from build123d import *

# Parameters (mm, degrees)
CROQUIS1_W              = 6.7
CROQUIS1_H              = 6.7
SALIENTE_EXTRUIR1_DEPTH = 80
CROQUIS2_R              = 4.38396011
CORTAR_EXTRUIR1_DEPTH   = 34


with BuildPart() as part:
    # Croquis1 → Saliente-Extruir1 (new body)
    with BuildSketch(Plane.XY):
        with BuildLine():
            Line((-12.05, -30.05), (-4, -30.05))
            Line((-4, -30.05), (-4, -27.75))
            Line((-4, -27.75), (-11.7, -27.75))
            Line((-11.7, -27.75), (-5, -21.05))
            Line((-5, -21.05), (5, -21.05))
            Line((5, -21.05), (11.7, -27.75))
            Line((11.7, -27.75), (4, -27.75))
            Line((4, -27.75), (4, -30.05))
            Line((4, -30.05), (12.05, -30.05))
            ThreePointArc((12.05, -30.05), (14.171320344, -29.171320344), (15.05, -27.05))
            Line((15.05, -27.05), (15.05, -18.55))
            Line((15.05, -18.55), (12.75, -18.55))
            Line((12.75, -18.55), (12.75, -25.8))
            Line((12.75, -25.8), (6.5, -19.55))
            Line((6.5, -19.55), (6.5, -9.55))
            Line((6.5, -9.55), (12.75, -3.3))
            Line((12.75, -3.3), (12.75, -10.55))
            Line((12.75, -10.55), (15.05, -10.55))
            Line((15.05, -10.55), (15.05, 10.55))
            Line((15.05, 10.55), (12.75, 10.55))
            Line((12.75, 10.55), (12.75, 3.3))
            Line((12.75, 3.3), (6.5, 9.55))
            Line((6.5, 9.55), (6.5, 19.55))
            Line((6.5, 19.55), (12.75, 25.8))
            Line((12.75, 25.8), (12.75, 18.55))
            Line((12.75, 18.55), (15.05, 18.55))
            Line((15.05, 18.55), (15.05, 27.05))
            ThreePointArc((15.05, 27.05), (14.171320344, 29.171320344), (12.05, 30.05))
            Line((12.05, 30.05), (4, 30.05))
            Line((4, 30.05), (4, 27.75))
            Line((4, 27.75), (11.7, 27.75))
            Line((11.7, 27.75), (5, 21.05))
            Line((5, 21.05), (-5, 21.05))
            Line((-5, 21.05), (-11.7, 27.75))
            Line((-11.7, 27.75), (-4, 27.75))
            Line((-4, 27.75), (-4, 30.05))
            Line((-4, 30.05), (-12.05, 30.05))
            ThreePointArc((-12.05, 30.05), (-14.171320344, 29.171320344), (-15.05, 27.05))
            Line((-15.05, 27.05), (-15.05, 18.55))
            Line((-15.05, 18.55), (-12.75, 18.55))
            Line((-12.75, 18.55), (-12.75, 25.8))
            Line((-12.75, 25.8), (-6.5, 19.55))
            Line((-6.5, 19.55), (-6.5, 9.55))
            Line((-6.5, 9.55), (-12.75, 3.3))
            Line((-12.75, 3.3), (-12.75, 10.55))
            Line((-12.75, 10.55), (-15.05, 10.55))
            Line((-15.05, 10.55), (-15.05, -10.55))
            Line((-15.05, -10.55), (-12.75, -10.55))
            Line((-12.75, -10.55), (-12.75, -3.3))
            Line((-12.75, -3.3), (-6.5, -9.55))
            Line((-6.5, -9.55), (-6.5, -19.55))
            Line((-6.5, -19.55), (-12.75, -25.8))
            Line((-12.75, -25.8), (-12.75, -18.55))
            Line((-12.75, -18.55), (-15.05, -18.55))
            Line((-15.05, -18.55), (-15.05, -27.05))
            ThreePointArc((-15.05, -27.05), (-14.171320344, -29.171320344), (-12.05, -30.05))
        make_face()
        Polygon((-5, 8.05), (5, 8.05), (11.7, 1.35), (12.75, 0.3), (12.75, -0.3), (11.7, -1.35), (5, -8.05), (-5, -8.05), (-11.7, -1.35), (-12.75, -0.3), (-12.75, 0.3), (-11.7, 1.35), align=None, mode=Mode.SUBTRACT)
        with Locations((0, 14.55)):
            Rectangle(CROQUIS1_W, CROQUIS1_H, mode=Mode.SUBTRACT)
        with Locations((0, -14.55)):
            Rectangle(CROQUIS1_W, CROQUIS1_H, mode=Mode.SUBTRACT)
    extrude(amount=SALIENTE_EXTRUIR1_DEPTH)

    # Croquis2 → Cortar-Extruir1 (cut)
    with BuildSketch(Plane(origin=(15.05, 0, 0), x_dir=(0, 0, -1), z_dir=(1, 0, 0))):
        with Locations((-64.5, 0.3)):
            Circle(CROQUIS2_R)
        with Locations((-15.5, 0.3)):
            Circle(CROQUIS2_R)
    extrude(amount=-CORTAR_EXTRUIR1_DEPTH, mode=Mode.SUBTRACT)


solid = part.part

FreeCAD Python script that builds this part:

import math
import FreeCAD as App
import Part
import Sketcher

V = App.Vector

doc = App.newDocument("Part")
body = doc.addObject("PartDesign::Body", "Body")

# Sketch on XY plane
sketch1 = body.newObject("Sketcher::SketchObject", "Sketch")
sketch1.AttachmentSupport = (doc.getObject("XY_Plane"), [""])
sketch1.MapMode = "FlatFace"
sketch1.addGeometry([
    Part.LineSegment(V(-12.1, -30.1, 0), V(-4, -30.1, 0)),  # 0
    Part.LineSegment(V(-4, -30.1, 0), V(-4, -27.8, 0)),  # 1
    Part.LineSegment(V(-4, -27.8, 0), V(-11.7, -27.8, 0)),  # 2
    Part.LineSegment(V(-11.7, -27.8, 0), V(-5, -21.1, 0)),  # 3
    Part.LineSegment(V(-5, -21.1, 0), V(5, -21.1, 0)),  # 4
    Part.LineSegment(V(5, -21.1, 0), V(11.7, -27.8, 0)),  # 5
    Part.LineSegment(V(11.7, -27.8, 0), V(4, -27.8, 0)),  # 6
    Part.LineSegment(V(4, -27.8, 0), V(4, -30.1, 0)),  # 7
    Part.LineSegment(V(4, -30.1, 0), V(12.1, -30.1, 0)),  # 8
    Part.ArcOfCircle(Part.Circle(V(12.1, -27.1, 0), V(0, 0, 1), 3), math.radians(-90), math.radians(0)),  # 9
    Part.LineSegment(V(15.1, -27.1, 0), V(15.1, -18.6, 0)),  # 10
    Part.LineSegment(V(15.1, -18.6, 0), V(12.8, -18.6, 0)),  # 11
    Part.LineSegment(V(12.8, -18.6, 0), V(12.8, -25.8, 0)),  # 12
    Part.LineSegment(V(12.8, -25.8, 0), V(6.5, -19.6, 0)),  # 13
    Part.LineSegment(V(6.5, -19.6, 0), V(6.5, -9.6, 0)),  # 14
    Part.LineSegment(V(6.5, -9.6, 0), V(12.8, -3.3, 0)),  # 15
    Part.LineSegment(V(12.8, -3.3, 0), V(12.8, -10.6, 0)),  # 16
    Part.LineSegment(V(12.8, -10.6, 0), V(15.1, -10.6, 0)),  # 17
    Part.LineSegment(V(15.1, -10.6, 0), V(15.1, 10.6, 0)),  # 18
    Part.LineSegment(V(15.1, 10.6, 0), V(12.8, 10.6, 0)),  # 19
    Part.LineSegment(V(12.8, 10.6, 0), V(12.8, 3.3, 0)),  # 20
    Part.LineSegment(V(12.8, 3.3, 0), V(6.5, 9.6, 0)),  # 21
    Part.LineSegment(V(6.5, 9.6, 0), V(6.5, 19.6, 0)),  # 22
    Part.LineSegment(V(6.5, 19.6, 0), V(12.8, 25.8, 0)),  # 23
    Part.LineSegment(V(12.8, 25.8, 0), V(12.8, 18.6, 0)),  # 24
    Part.LineSegment(V(12.8, 18.6, 0), V(15.1, 18.6, 0)),  # 25
    Part.LineSegment(V(15.1, 18.6, 0), V(15.1, 27.1, 0)),  # 26
    Part.ArcOfCircle(Part.Circle(V(12.1, 27.1, 0), V(0, 0, 1), 3), math.radians(0), math.radians(90)),  # 27
    Part.LineSegment(V(12.1, 30.1, 0), V(4, 30.1, 0)),  # 28
    Part.LineSegment(V(4, 30.1, 0), V(4, 27.8, 0)),  # 29
    Part.LineSegment(V(4, 27.8, 0), V(11.7, 27.8, 0)),  # 30
    Part.LineSegment(V(11.7, 27.8, 0), V(5, 21.1, 0)),  # 31
    Part.LineSegment(V(5, 21.1, 0), V(-5, 21.1, 0)),  # 32
    Part.LineSegment(V(-5, 21.1, 0), V(-11.7, 27.8, 0)),  # 33
    Part.LineSegment(V(-11.7, 27.8, 0), V(-4, 27.8, 0)),  # 34
    Part.LineSegment(V(-4, 27.8, 0), V(-4, 30.1, 0)),  # 35
    Part.LineSegment(V(-4, 30.1, 0), V(-12.1, 30.1, 0)),  # 36
    Part.ArcOfCircle(Part.Circle(V(-12.1, 27.1, 0), V(0, 0, 1), 3), math.radians(90), math.radians(180)),  # 37
    Part.LineSegment(V(-15.1, 27.1, 0), V(-15.1, 18.6, 0)),  # 38
    Part.LineSegment(V(-15.1, 18.6, 0), V(-12.8, 18.6, 0)),  # 39
    Part.LineSegment(V(-12.8, 18.6, 0), V(-12.8, 25.8, 0)),  # 40
    Part.LineSegment(V(-12.8, 25.8, 0), V(-6.5, 19.6, 0)),  # 41
    Part.LineSegment(V(-6.5, 19.6, 0), V(-6.5, 9.6, 0)),  # 42
    Part.LineSegment(V(-6.5, 9.6, 0), V(-12.8, 3.3, 0)),  # 43
    Part.LineSegment(V(-12.8, 3.3, 0), V(-12.8, 10.6, 0)),  # 44
    Part.LineSegment(V(-12.8, 10.6, 0), V(-15.1, 10.6, 0)),  # 45
    Part.LineSegment(V(-15.1, 10.6, 0), V(-15.1, -10.6, 0)),  # 46
    Part.LineSegment(V(-15.1, -10.6, 0), V(-12.8, -10.6, 0)),  # 47
    Part.LineSegment(V(-12.8, -10.6, 0), V(-12.8, -3.3, 0)),  # 48
    Part.LineSegment(V(-12.8, -3.3, 0), V(-6.5, -9.6, 0)),  # 49
    Part.LineSegment(V(-6.5, -9.6, 0), V(-6.5, -19.6, 0)),  # 50
    Part.LineSegment(V(-6.5, -19.6, 0), V(-12.8, -25.8, 0)),  # 51
    Part.LineSegment(V(-12.8, -25.8, 0), V(-12.8, -18.6, 0)),  # 52
    Part.LineSegment(V(-12.8, -18.6, 0), V(-15.1, -18.6, 0)),  # 53
    Part.LineSegment(V(-15.1, -18.6, 0), V(-15.1, -27.1, 0)),  # 54
    Part.ArcOfCircle(Part.Circle(V(-12.1, -27.1, 0), V(0, 0, 1), 3), math.radians(180), math.radians(270)),  # 55
    Part.LineSegment(V(3.4, -17.9, 0), V(-3.4, -17.9, 0)),  # 56
    Part.LineSegment(V(-3.4, -17.9, 0), V(-3.4, -11.2, 0)),  # 57
    Part.LineSegment(V(-3.4, -11.2, 0), V(3.4, -11.2, 0)),  # 58
    Part.LineSegment(V(3.4, -11.2, 0), V(3.4, -17.9, 0)),  # 59
    Part.LineSegment(V(-12.8, 0.3, 0), V(-5, 8.1, 0)),  # 60
    Part.LineSegment(V(-5, 8.1, 0), V(5, 8.1, 0)),  # 61
    Part.LineSegment(V(5, 8.1, 0), V(12.8, 0.3, 0)),  # 62
    Part.LineSegment(V(12.8, 0.3, 0), V(12.8, -0.3, 0)),  # 63
    Part.LineSegment(V(12.8, -0.3, 0), V(5, -8.1, 0)),  # 64
    Part.LineSegment(V(5, -8.1, 0), V(-5, -8.1, 0)),  # 65
    Part.LineSegment(V(-5, -8.1, 0), V(-12.8, -0.3, 0)),  # 66
    Part.LineSegment(V(-12.8, -0.3, 0), V(-12.8, 0.3, 0)),  # 67
    Part.LineSegment(V(3.4, 11.2, 0), V(-3.4, 11.2, 0)),  # 68
    Part.LineSegment(V(-3.4, 11.2, 0), V(-3.4, 17.9, 0)),  # 69
    Part.LineSegment(V(-3.4, 17.9, 0), V(3.4, 17.9, 0)),  # 70
    Part.LineSegment(V(3.4, 17.9, 0), V(3.4, 11.2, 0)),  # 71
], False)
sketch1.addConstraint([
    Sketcher.Constraint("Coincident", 0, 2, 1, 1),
    Sketcher.Constraint("Coincident", 1, 2, 2, 1),
    Sketcher.Constraint("Coincident", 2, 2, 3, 1),
    Sketcher.Constraint("Coincident", 3, 2, 4, 1),
    Sketcher.Constraint("Coincident", 4, 2, 5, 1),
    Sketcher.Constraint("Coincident", 5, 2, 6, 1),
    Sketcher.Constraint("Coincident", 6, 2, 7, 1),
    Sketcher.Constraint("Coincident", 7, 2, 8, 1),
    Sketcher.Constraint("Tangent", 8, 2, 9, 1),
    Sketcher.Constraint("Tangent", 9, 2, 10, 1),
    Sketcher.Constraint("Coincident", 10, 2, 11, 1),
    Sketcher.Constraint("Coincident", 11, 2, 12, 1),
    Sketcher.Constraint("Coincident", 12, 2, 13, 1),
    Sketcher.Constraint("Coincident", 13, 2, 14, 1),
    Sketcher.Constraint("Coincident", 14, 2, 15, 1),
    Sketcher.Constraint("Coincident", 15, 2, 16, 1),
    Sketcher.Constraint("Coincident", 16, 2, 17, 1),
    Sketcher.Constraint("Coincident", 17, 2, 18, 1),
    Sketcher.Constraint("Coincident", 18, 2, 19, 1),
    Sketcher.Constraint("Coincident", 19, 2, 20, 1),
    Sketcher.Constraint("Coincident", 20, 2, 21, 1),
    Sketcher.Constraint("Coincident", 21, 2, 22, 1),
    Sketcher.Constraint("Coincident", 22, 2, 23, 1),
    Sketcher.Constraint("Coincident", 23, 2, 24, 1),
    Sketcher.Constraint("Coincident", 24, 2, 25, 1),
    Sketcher.Constraint("Coincident", 25, 2, 26, 1),
    Sketcher.Constraint("Tangent", 26, 2, 27, 1),
    Sketcher.Constraint("Tangent", 27, 2, 28, 1),
    Sketcher.Constraint("Coincident", 28, 2, 29, 1),
    Sketcher.Constraint("Coincident", 29, 2, 30, 1),
    Sketcher.Constraint("Coincident", 30, 2, 31, 1),
    Sketcher.Constraint("Coincident", 31, 2, 32, 1),
    Sketcher.Constraint("Coincident", 32, 2, 33, 1),
    Sketcher.Constraint("Coincident", 33, 2, 34, 1),
    Sketcher.Constraint("Coincident", 34, 2, 35, 1),
    Sketcher.Constraint("Coincident", 35, 2, 36, 1),
    Sketcher.Constraint("Tangent", 36, 2, 37, 1),
    Sketcher.Constraint("Tangent", 37, 2, 38, 1),
    Sketcher.Constraint("Coincident", 38, 2, 39, 1),
    Sketcher.Constraint("Coincident", 39, 2, 40, 1),
    Sketcher.Constraint("Coincident", 40, 2, 41, 1),
    Sketcher.Constraint("Coincident", 41, 2, 42, 1),
    Sketcher.Constraint("Coincident", 42, 2, 43, 1),
    Sketcher.Constraint("Coincident", 43, 2, 44, 1),
    Sketcher.Constraint("Coincident", 44, 2, 45, 1),
    Sketcher.Constraint("Coincident", 45, 2, 46, 1),
    Sketcher.Constraint("Coincident", 46, 2, 47, 1),
    Sketcher.Constraint("Coincident", 47, 2, 48, 1),
    Sketcher.Constraint("Coincident", 48, 2, 49, 1),
    Sketcher.Constraint("Coincident", 49, 2, 50, 1),
    Sketcher.Constraint("Coincident", 50, 2, 51, 1),
    Sketcher.Constraint("Coincident", 51, 2, 52, 1),
    Sketcher.Constraint("Coincident", 52, 2, 53, 1),
    Sketcher.Constraint("Coincident", 53, 2, 54, 1),
    Sketcher.Constraint("Tangent", 54, 2, 55, 1),
    Sketcher.Constraint("Tangent", 55, 2, 0, 1),
    Sketcher.Constraint("Coincident", 56, 2, 57, 1),
    Sketcher.Constraint("Coincident", 57, 2, 58, 1),
    Sketcher.Constraint("Coincident", 58, 2, 59, 1),
    Sketcher.Constraint("Coincident", 59, 2, 56, 1),
    Sketcher.Constraint("Coincident", 60, 2, 61, 1),
    Sketcher.Constraint("Coincident", 61, 2, 62, 1),
    Sketcher.Constraint("Coincident", 62, 2, 63, 1),
    Sketcher.Constraint("Coincident", 63, 2, 64, 1),
    Sketcher.Constraint("Coincident", 64, 2, 65, 1),
    Sketcher.Constraint("Coincident", 65, 2, 66, 1),
    Sketcher.Constraint("Coincident", 66, 2, 67, 1),
    Sketcher.Constraint("Coincident", 67, 2, 60, 1),
    Sketcher.Constraint("Coincident", 68, 2, 69, 1),
    Sketcher.Constraint("Coincident", 69, 2, 70, 1),
    Sketcher.Constraint("Coincident", 70, 2, 71, 1),
    Sketcher.Constraint("Coincident", 71, 2, 68, 1),
    Sketcher.Constraint("Horizontal", 0),
    Sketcher.Constraint("Vertical", 1),
    Sketcher.Constraint("Horizontal", 2),
    Sketcher.Constraint("Horizontal", 4),
    Sketcher.Constraint("Horizontal", 6),
    Sketcher.Constraint("Vertical", 7),
    Sketcher.Constraint("Horizontal", 8),
    Sketcher.Constraint("Vertical", 10),
    Sketcher.Constraint("Horizontal", 11),
    Sketcher.Constraint("Vertical", 12),
    Sketcher.Constraint("Vertical", 14),
    Sketcher.Constraint("Vertical", 16),
    Sketcher.Constraint("Horizontal", 17),
    Sketcher.Constraint("Vertical", 18),
    Sketcher.Constraint("Horizontal", 19),
    Sketcher.Constraint("Vertical", 20),
    Sketcher.Constraint("Vertical", 22),
    Sketcher.Constraint("Vertical", 24),
    Sketcher.Constraint("Horizontal", 25),
    Sketcher.Constraint("Vertical", 26),
    Sketcher.Constraint("Horizontal", 28),
    Sketcher.Constraint("Vertical", 29),
    Sketcher.Constraint("Horizontal", 30),
    Sketcher.Constraint("Horizontal", 32),
    Sketcher.Constraint("Horizontal", 34),
    Sketcher.Constraint("Vertical", 35),
    Sketcher.Constraint("Horizontal", 36),
    Sketcher.Constraint("Vertical", 38),
    Sketcher.Constraint("Horizontal", 39),
    Sketcher.Constraint("Vertical", 40),
    Sketcher.Constraint("Vertical", 42),
    Sketcher.Constraint("Vertical", 44),
    Sketcher.Constraint("Horizontal", 45),
    Sketcher.Constraint("Vertical", 46),
    Sketcher.Constraint("Horizontal", 47),
    Sketcher.Constraint("Vertical", 48),
    Sketcher.Constraint("Vertical", 50),
    Sketcher.Constraint("Vertical", 52),
    Sketcher.Constraint("Horizontal", 53),
    Sketcher.Constraint("Vertical", 54),
    Sketcher.Constraint("Horizontal", 56),
    Sketcher.Constraint("Vertical", 57),
    Sketcher.Constraint("Horizontal", 58),
    Sketcher.Constraint("Vertical", 59),
    Sketcher.Constraint("Horizontal", 61),
    Sketcher.Constraint("Vertical", 63),
    Sketcher.Constraint("Horizontal", 65),
    Sketcher.Constraint("Vertical", 67),
    Sketcher.Constraint("Horizontal", 68),
    Sketcher.Constraint("Vertical", 69),
    Sketcher.Constraint("Horizontal", 70),
    Sketcher.Constraint("Vertical", 71),
    Sketcher.Constraint("Equal", 9, 27),
    Sketcher.Constraint("Equal", 27, 37),
    Sketcher.Constraint("Equal", 37, 55),
    Sketcher.Constraint("Symmetric", 9, 3, 37, 3, -1, 1),
    Sketcher.Constraint("Symmetric", 27, 3, 55, 3, -1, 1),
    Sketcher.Constraint("Symmetric", 1, 2, 29, 2, -1, 1),
    Sketcher.Constraint("Symmetric", 3, 2, 31, 2, -1, 1),
    Sketcher.Constraint("Symmetric", 5, 2, 33, 2, -1, 1),
    Sketcher.Constraint("Symmetric", 11, 2, 39, 2, -1, 1),
    Sketcher.Constraint("Symmetric", 13, 2, 41, 2, -1, 1),
    Sketcher.Constraint("Symmetric", 15, 2, 43, 2, -1, 1),
    Sketcher.Constraint("Symmetric", 17, 2, 45, 2, -1, 1),
    Sketcher.Constraint("Symmetric", 19, 2, 47, 2, -1, 1),
    Sketcher.Constraint("Symmetric", 21, 2, 49, 2, -1, 1),
    Sketcher.Constraint("Symmetric", 23, 2, 51, 2, -1, 1),
    Sketcher.Constraint("Symmetric", 60, 2, 64, 2, -1, 1),
    Sketcher.Constraint("Symmetric", 62, 2, 66, 2, -1, 1),
    Sketcher.Constraint("Symmetric", 58, 2, 68, 2, -1, 1),
    Sketcher.Constraint("Symmetric", 56, 2, 70, 2, -1, 1),
    Sketcher.Constraint("Symmetric", 27, 3, 37, 3, -2),
    Sketcher.Constraint("Symmetric", 2, 2, 5, 2, -2),
    Sketcher.Constraint("Symmetric", 24, 2, 39, 2, -2),
    Sketcher.Constraint("Symmetric", 22, 2, 41, 2, -2),
    Sketcher.Constraint("Symmetric", 20, 2, 43, 2, -2),
    Sketcher.Constraint("Perpendicular", 3, 5),
    Sketcher.Constraint("Parallel", 5, 13),
    Sketcher.Constraint("Perpendicular", 13, 15),
    Sketcher.Constraint("Perpendicular", 15, 21),
    Sketcher.Constraint("Perpendicular", 21, 23),
    Sketcher.Constraint("Parallel", 23, 31),
    Sketcher.Constraint("Perpendicular", 31, 33),
    Sketcher.Constraint("Parallel", 33, 41),
    Sketcher.Constraint("Perpendicular", 41, 43),
    Sketcher.Constraint("Perpendicular", 43, 49),
    Sketcher.Constraint("Perpendicular", 49, 51),
    Sketcher.Constraint("Parallel", 51, 60),
    Sketcher.Constraint("Perpendicular", 60, 62),
    Sketcher.Constraint("Perpendicular", 62, 64),
    Sketcher.Constraint("Perpendicular", 64, 66),
    Sketcher.Constraint("Horizontal", 23, 2, 40, 2),
    Sketcher.Constraint("Horizontal", 19, 2, 44, 2),
    Sketcher.Constraint("Horizontal", 11, 2, 52, 2),
    Sketcher.Constraint("Horizontal", 63, 2, 66, 2),
    Sketcher.Constraint("Vertical", 12, 2, 15, 2),
    Sketcher.Constraint("Vertical", 10, 2, 17, 2),
    Sketcher.Constraint("Vertical", 7, 2, 28, 2),
    Sketcher.Constraint("Vertical", 1, 2, 34, 2),
    Sketcher.Constraint("Vertical", 32, 2, 60, 2),
    Sketcher.Constraint("Vertical", 24, 2, 62, 2),
    Sketcher.Constraint("Vertical", 57, 2, 68, 2),
    Sketcher.Constraint("Equal", 53, 1),
    Sketcher.Constraint("Equal", 65, 14),
    Sketcher.Constraint("Equal", 12, 16),
    Sketcher.Constraint("Equal", 70, 57),
    Sketcher.Constraint("Radius", 9, 3.0),
    Sketcher.Constraint("DistanceX", 4, 1, 4, 2, 10.0),
    Sketcher.Constraint("DistanceX", 2, 2, 2, 1, 7.7),
    Sketcher.Constraint("DistanceX", 11, 2, 11, 1, 2.3),
    Sketcher.Constraint("DistanceX", 56, 2, 56, 1, 6.7),
    Sketcher.Constraint("DistanceY", 10, 1, 10, 2, 8.5),
    Sketcher.Constraint("DistanceY", 18, 1, 18, 2, 21.1),
    Sketcher.Constraint("DistanceY", 63, 2, 63, 1, 0.6),
    Sketcher.Constraint("DistanceX", 0, 2, -1, 1, 4.0),
    Sketcher.Constraint("DistanceX", 0, 1, 0, 2, 8.05),
    Sketcher.Constraint("DistanceY", 12, 2, 12, 1, 7.25),
    Sketcher.Constraint("DistanceY", 12, 2, -1, 1, 25.8),
    Sketcher.Constraint("DistanceY", 56, 2, -1, 1, 17.9),
])
pad1 = body.newObject("PartDesign::Pad", "Pad")
pad1.Profile = sketch1
pad1.Length = 80

# Sketch on YZ plane
sketch2 = body.newObject("Sketcher::SketchObject", "Sketch001")
sketch2.AttachmentSupport = (doc.getObject("YZ_Plane"), [""])
sketch2.MapMode = "FlatFace"
sketch2.AttachmentOffset = App.Placement(V(0, 0, 15.05), App.Rotation())
sketch2.addGeometry([
    Part.Circle(V(0.3, 64.5, 0), V(0, 0, 1), 4.4),
    Part.Circle(V(0.3, 15.5, 0), V(0, 0, 1), 4.4),
], False)
sketch2.addConstraint([
    Sketcher.Constraint("Equal", 0, 1),
    Sketcher.Constraint("Vertical", 0, 3, 1, 3),
    Sketcher.Constraint("DistanceY", 1, 3, 0, 3, 49.0),
    Sketcher.Constraint("DistanceX", -1, 1, 0, 3, 0.3),
    Sketcher.Constraint("DistanceY", -1, 1, 0, 3, 64.5),
    Sketcher.Constraint("Diameter", 0, 8.76792),
])
pocket1 = body.newObject("PartDesign::Pocket", "Pocket")
pocket1.Profile = sketch2
pocket1.Length = 34

doc.recompute()
